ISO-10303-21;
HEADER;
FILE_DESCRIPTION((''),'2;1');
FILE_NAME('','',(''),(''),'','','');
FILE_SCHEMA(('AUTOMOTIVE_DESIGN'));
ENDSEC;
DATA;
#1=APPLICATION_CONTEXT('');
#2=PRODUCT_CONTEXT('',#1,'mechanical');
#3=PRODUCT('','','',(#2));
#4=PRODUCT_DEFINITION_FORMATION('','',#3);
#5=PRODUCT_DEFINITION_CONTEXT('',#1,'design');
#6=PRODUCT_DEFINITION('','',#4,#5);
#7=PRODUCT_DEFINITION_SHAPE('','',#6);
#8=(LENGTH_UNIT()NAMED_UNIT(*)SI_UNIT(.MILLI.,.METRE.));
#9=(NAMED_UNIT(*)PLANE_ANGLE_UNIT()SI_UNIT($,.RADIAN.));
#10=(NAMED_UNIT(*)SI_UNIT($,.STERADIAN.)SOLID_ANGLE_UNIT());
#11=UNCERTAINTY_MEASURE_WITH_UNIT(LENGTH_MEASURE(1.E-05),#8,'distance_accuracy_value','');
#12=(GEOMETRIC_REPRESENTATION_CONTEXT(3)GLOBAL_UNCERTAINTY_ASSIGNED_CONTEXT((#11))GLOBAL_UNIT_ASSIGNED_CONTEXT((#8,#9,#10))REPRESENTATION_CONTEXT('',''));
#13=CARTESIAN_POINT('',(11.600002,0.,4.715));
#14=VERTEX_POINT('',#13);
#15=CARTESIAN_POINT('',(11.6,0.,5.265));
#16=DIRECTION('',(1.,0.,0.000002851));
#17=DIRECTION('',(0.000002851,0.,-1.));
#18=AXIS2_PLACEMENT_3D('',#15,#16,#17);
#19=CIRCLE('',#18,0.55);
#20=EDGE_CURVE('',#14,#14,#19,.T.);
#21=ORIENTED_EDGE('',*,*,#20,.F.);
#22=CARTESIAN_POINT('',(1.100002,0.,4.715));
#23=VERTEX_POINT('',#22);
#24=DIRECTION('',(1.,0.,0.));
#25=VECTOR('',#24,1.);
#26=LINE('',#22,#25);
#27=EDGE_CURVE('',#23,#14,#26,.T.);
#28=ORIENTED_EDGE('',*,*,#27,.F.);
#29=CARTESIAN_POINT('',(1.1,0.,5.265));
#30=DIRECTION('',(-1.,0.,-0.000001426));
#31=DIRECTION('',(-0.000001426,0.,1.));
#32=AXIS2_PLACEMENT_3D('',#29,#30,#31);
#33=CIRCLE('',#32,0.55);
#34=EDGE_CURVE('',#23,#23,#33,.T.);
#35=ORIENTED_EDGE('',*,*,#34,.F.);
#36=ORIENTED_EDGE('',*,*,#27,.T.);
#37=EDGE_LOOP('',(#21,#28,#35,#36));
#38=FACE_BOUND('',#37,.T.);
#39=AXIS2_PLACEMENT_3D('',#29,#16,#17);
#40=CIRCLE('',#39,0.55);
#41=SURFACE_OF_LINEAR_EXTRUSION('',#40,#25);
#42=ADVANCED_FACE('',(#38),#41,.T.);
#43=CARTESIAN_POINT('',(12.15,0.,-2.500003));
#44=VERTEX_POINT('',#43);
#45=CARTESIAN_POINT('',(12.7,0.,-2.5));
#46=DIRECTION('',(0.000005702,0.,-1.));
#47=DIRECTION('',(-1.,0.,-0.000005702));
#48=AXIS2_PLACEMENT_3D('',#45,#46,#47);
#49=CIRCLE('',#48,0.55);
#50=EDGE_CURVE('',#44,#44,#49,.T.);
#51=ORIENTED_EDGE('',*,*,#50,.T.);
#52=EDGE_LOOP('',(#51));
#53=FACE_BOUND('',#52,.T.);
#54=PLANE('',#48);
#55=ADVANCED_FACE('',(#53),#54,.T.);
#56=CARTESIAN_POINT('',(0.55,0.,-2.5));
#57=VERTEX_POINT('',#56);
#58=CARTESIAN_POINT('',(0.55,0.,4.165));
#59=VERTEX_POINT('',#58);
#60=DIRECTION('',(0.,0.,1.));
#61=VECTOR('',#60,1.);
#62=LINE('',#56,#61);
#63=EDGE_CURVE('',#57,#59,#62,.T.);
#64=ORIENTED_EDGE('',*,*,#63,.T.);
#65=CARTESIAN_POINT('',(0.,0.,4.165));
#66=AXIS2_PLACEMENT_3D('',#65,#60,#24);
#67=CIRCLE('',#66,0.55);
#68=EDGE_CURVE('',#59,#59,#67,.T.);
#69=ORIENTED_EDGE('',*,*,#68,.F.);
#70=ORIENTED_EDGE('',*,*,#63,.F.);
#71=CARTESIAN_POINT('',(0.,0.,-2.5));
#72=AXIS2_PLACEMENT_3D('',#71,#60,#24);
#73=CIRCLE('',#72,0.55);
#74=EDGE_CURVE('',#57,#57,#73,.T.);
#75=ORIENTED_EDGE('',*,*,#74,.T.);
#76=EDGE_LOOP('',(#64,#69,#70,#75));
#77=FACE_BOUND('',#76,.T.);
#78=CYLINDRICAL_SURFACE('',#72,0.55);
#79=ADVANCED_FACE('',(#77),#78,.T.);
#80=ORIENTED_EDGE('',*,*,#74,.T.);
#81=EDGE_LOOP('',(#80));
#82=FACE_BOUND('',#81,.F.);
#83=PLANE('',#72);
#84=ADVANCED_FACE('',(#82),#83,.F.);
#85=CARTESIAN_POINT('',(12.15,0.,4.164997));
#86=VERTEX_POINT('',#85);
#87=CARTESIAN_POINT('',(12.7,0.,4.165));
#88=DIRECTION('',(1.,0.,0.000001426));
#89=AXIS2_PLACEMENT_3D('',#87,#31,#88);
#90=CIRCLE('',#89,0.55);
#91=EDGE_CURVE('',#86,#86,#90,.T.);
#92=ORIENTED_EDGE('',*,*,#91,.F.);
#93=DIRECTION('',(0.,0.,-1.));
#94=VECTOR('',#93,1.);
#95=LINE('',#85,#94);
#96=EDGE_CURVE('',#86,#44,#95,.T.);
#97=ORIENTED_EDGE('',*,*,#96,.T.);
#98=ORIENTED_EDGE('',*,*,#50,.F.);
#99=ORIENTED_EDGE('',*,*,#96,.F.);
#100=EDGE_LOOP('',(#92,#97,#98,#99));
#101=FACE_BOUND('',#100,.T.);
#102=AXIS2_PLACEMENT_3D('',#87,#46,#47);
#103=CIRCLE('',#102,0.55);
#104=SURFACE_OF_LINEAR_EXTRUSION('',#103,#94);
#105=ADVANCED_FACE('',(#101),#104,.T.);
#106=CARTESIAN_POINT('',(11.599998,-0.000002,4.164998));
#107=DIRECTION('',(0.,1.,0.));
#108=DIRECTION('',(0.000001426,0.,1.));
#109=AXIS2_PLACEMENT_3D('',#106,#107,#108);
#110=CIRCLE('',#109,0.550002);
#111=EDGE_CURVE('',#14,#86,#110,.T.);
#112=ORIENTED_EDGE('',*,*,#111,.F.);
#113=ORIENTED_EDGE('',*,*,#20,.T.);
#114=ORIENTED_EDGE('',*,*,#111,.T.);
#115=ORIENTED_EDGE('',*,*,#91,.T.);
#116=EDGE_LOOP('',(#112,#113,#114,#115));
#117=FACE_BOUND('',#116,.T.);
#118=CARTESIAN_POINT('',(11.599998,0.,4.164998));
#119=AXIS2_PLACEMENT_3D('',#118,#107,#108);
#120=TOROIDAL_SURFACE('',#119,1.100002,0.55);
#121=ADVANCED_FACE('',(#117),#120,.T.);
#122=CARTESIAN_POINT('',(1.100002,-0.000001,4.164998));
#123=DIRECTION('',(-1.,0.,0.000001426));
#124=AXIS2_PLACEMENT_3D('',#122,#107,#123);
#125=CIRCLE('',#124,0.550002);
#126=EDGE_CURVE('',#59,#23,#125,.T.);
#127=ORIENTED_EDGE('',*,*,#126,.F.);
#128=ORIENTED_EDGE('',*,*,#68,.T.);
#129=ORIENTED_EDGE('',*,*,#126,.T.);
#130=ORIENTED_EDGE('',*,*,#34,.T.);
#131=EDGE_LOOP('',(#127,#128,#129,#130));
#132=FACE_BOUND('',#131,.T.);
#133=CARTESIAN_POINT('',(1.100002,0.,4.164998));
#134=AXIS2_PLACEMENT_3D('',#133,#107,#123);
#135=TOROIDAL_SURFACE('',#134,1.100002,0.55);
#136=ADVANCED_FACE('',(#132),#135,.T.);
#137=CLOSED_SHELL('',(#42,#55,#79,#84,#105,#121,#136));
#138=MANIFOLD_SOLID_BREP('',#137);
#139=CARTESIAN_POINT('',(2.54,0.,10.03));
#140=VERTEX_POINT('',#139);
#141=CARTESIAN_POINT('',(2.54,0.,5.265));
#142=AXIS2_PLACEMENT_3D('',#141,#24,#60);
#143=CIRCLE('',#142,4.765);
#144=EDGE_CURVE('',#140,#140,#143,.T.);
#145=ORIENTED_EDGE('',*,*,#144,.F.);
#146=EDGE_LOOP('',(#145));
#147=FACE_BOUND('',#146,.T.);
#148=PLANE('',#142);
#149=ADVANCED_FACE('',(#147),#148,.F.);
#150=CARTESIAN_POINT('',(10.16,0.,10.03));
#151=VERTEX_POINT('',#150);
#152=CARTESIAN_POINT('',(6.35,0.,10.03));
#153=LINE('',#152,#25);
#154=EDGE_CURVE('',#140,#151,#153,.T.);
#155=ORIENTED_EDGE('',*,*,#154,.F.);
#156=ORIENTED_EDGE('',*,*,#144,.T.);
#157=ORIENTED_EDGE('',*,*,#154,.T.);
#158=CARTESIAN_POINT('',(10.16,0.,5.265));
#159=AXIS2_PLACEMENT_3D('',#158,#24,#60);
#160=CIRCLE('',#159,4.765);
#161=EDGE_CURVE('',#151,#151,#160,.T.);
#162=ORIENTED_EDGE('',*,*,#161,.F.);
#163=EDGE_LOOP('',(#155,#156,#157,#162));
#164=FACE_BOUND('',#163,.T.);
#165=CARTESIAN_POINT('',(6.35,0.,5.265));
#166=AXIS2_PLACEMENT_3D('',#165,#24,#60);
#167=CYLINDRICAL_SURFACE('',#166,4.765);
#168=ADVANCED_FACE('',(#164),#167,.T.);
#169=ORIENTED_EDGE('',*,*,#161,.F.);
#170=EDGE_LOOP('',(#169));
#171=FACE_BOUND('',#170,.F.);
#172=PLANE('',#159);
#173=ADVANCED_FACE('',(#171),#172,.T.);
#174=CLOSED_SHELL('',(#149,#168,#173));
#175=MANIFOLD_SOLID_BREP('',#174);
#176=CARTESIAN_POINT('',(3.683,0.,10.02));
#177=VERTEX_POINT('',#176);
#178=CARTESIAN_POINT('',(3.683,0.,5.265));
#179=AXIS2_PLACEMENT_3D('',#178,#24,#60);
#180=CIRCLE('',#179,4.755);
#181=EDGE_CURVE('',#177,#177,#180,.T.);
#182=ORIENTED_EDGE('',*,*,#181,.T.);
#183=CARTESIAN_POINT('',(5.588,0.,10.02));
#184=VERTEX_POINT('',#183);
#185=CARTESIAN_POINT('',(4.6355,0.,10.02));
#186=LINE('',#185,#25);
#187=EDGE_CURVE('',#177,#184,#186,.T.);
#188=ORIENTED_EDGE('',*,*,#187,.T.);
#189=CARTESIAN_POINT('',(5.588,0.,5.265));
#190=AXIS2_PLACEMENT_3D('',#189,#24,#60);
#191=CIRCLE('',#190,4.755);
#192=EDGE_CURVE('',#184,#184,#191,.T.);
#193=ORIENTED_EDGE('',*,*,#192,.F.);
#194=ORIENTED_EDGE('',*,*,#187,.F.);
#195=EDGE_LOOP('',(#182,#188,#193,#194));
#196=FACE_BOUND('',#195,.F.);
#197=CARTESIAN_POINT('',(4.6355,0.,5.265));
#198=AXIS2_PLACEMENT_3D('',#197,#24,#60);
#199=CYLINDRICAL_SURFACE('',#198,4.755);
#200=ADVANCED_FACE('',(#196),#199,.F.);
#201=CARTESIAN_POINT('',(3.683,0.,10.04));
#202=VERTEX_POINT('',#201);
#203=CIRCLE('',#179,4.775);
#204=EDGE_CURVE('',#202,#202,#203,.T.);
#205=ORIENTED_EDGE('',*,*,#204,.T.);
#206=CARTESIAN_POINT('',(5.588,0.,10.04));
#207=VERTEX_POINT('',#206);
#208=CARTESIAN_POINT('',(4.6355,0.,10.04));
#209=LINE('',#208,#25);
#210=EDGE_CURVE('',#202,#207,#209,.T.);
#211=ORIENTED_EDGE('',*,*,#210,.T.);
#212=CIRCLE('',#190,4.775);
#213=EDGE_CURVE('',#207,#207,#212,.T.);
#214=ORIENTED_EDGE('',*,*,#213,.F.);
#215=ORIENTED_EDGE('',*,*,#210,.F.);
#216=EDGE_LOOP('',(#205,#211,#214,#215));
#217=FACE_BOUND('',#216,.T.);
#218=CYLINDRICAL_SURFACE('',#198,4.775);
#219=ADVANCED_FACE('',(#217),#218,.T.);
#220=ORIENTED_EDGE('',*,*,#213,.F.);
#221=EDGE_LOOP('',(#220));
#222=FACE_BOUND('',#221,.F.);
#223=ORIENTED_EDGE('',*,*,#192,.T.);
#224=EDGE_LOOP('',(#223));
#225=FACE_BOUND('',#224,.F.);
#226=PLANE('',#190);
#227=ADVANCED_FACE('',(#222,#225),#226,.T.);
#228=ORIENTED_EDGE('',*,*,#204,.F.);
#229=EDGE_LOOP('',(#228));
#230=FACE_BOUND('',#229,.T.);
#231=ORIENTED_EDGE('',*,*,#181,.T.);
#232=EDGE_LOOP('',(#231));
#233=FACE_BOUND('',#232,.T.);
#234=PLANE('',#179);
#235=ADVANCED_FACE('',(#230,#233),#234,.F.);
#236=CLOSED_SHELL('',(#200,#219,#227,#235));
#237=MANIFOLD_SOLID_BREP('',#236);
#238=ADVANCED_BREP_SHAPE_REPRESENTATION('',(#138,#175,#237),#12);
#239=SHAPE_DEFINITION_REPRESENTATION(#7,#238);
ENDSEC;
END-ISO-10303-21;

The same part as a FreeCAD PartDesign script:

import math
import FreeCAD as App
import Part
import Sketcher

V = App.Vector
Q = App.Units.Quantity

doc = App.newDocument("Part")
params = doc.addObject("Spreadsheet::Sheet", "Params")
for row, (alias, value) in enumerate([
    ("sketch1_width", "7.62 mm"),
    ("revolution_angle", "360 deg"),
    ("sketch2_height", "0.02 mm"),
    ("revolution2_angle", "360 deg"),
    ("sketch3_diameter", "1.1 mm"),
    ("sketch4_radius", "1.100002 mm"),
    ("sketch4_width", "10.5 mm"),
], start=1):
    params.set(f"A{row}", alias)
    params.set(f"B{row}", "=" + value)
    params.setAlias(f"B{row}", alias)

body = doc.addObject("PartDesign::Body", "Body")

# Sketch on XZ plane
sketch1 = body.newObject("Sketcher::SketchObject", "Sketch")
sketch1.AttachmentSupport = (doc.getObject("XZ_Plane"), [""])
sketch1.MapMode = "FlatFace"
sketch1.addGeometry([
    Part.LineSegment(V(2.5, 10, 0), V(2.5, 5.3, 0)),
    Part.LineSegment(V(2.5, 5.3, 0), V(10.2, 5.3, 0)),
    Part.LineSegment(V(10.2, 5.3, 0), V(10.2, 10, 0)),
    Part.LineSegment(V(10.2, 10, 0), V(2.5, 10, 0)),
], False)
sketch1.addGeometry(Part.LineSegment(V(2.5, 5.3, 0), V(10.2, 5.3, 0)), True)  # axis
sketch1.addConstraint([
    Sketcher.Constraint("Coincident", 0, 2, 1, 1),
    Sketcher.Constraint("Coincident", 1, 2, 2, 1),
    Sketcher.Constraint("Coincident", 2, 2, 3, 1),
    Sketcher.Constraint("Coincident", 3, 2, 0, 1),
    Sketcher.Constraint("Vertical", 0),
    Sketcher.Constraint("Horizontal", 1),
    Sketcher.Constraint("Vertical", 2),
    Sketcher.Constraint("Horizontal", 3),
    Sketcher.Constraint("Horizontal", 4),
    Sketcher.Constraint("Coincident", 4, 1, 0, 2),
    Sketcher.Constraint("Vertical", 2, 2, 4, 2),
    Sketcher.Constraint("DistanceX", 1, 1, 1, 2, Q("7.62 mm")),
    Sketcher.Constraint("DistanceY", 0, 2, 0, 1, Q("4.765 mm")),
    Sketcher.Constraint("DistanceX", -1, 1, 0, 2, Q("2.54 mm")),
    Sketcher.Constraint("DistanceY", -1, 1, 2, 2, Q("10.03 mm")),
])
sketch1.setExpression("Constraints[11]", "Params.sketch1_width")
revolution = body.newObject("PartDesign::Revolution", "Revolution")
revolution.Profile = sketch1
revolution.ReferenceAxis = (sketch1, ["Axis0"])
revolution.setExpression("Angle", "Params.revolution_angle")
body2 = doc.addObject("PartDesign::Body", "Body001")

# Sketch on XZ plane
sketch2 = body2.newObject("Sketcher::SketchObject", "Sketch001")
sketch2.AttachmentSupport = (doc.getObject("XZ_Plane001"), [""])
sketch2.MapMode = "FlatFace"
sketch2.addGeometry([
    Part.LineSegment(V(3.683, 10.04, 0), V(3.683, 10.02, 0)),
    Part.LineSegment(V(3.683, 10.02, 0), V(5.588, 10.02, 0)),
    Part.LineSegment(V(5.588, 10.02, 0), V(5.588, 10.04, 0)),
    Part.LineSegment(V(5.588, 10.04, 0), V(3.683, 10.04, 0)),
], False)
sketch2.addGeometry(Part.LineSegment(V(3.683, 5.265, 0), V(5.588, 5.265, 0)), True)  # axis
sketch2.addConstraint([
    Sketcher.Constraint("Coincident", 0, 2, 1, 1),
    Sketcher.Constraint("Coincident", 1, 2, 2, 1),
    Sketcher.Constraint("Coincident", 2, 2, 3, 1),
    Sketcher.Constraint("Coincident", 3, 2, 0, 1),
    Sketcher.Constraint("Vertical", 0),
    Sketcher.Constraint("Horizontal", 1),
    Sketcher.Constraint("Vertical", 2),
    Sketcher.Constraint("Horizontal", 3),
    Sketcher.Constraint("Horizontal", 4),
    Sketcher.Constraint("Vertical", 3, 2, 4, 1),
    Sketcher.Constraint("Vertical", 2, 2, 4, 2),
    Sketcher.Constraint("DistanceY", 0, 2, 0, 1, Q("0.02 mm")),
    Sketcher.Constraint("DistanceX", 1, 1, 1, 2, Q("1.905 mm")),
    Sketcher.Constraint("DistanceY", -1, 1, 0, 2, Q("10.02 mm")),
    Sketcher.Constraint("DistanceX", -1, 1, 0, 2, Q("3.683 mm")),
    Sketcher.Constraint("DistanceY", -1, 1, 4, 1, Q("5.265 mm")),
])
sketch2.setExpression("Constraints[11]", "Params.sketch2_height")
revolution2 = body2.newObject("PartDesign::Revolution", "Revolution001")
revolution2.Profile = sketch2
revolution2.ReferenceAxis = (sketch2, ["Axis0"])
revolution2.setExpression("Angle", "Params.revolution2_angle")
body3 = doc.addObject("PartDesign::Body", "Body002")

# Sketch on XY plane
sketch3 = body3.newObject("Sketcher::SketchObject", "Sketch002")
sketch3.AttachmentSupport = (doc.getObject("XY_Plane002"), [""])
sketch3.MapMode = "FlatFace"
sketch3.AttachmentOffset = App.Placement(V(0, 0, -2), App.Rotation())
sketch3.addGeometry(Part.Circle(V(0, 0, 0), V(0, 0, 1), 0.6), False)
sketch3.addConstraint([
    Sketcher.Constraint("Coincident", 0, 3, -1, 1),
    Sketcher.Constraint("Diameter", 0, Q("1.1 mm")),
])
sketch3.setExpression("Constraints[1]", "Params.sketch3_diameter")

# Sketch on XZ plane
sketch4 = body3.newObject("Sketcher::SketchObject", "Sketch003")
sketch4.AttachmentSupport = (doc.getObject("XZ_Plane002"), [""])
sketch4.MapMode = "FlatFace"
sketch4.addGeometry([
    Part.LineSegment(V(0, -2.5, 0), V(0, 4.2, 0)),  # 0
    Part.ArcOfCircle(Part.Circle(V(1.1, 4.2, 0), V(0, 0, 1), 1.1), math.radians(90), math.radians(180)),  # 1
    Part.LineSegment(V(1.1, 5.3, 0), V(11.6, 5.3, 0)),  # 2
    Part.ArcOfCircle(Part.Circle(V(11.6, 4.2, 0), V(0, 0, 1), 1.1), math.radians(0), math.radians(90)),  # 3
    Part.LineSegment(V(12.7, 4.2, 0), V(12.7, -2.5, 0)),  # 4
], False)
sketch4.addConstraint([
    Sketcher.Constraint("Tangent", 0, 2, 1, 2),
    Sketcher.Constraint("Tangent", 1, 1, 2, 1),
    Sketcher.Constraint("Tangent", 2, 2, 3, 2),
    Sketcher.Constraint("Tangent", 3, 1, 4, 1),
    Sketcher.Constraint("Vertical", 0),
    Sketcher.Constraint("Horizontal", 2),
    Sketcher.Constraint("Vertical", 4),
    Sketcher.Constraint("Equal", 1, 3),
    Sketcher.Constraint("PointOnObject", 0, 1, -2),
    Sketcher.Constraint("Horizontal", 0, 1, 4, 2),
    Sketcher.Constraint("Radius", 1, Q("1.100002 mm")),
    Sketcher.Constraint("DistanceX", 2, 1, 2, 2, Q("10.5 mm")),
    Sketcher.Constraint("DistanceY", 0, 1, -1, 1, Q("2.5 mm")),
    Sketcher.Constraint("DistanceY", 0, 1, 0, 2, Q("6.665 mm")),
])
sketch4.setExpression("Constraints[10]", "Params.sketch4_radius")
sketch4.setExpression("Constraints[11]", "Params.sketch4_width")
doc.recompute()

additivepipe = body3.newObject("PartDesign::AdditivePipe", "AdditivePipe")
additivepipe.Profile = sketch3
additivepipe.Spine = (sketch4, ["Edge1", "Edge2", "Edge3", "Edge4", "Edge5"])

doc.recompute()
